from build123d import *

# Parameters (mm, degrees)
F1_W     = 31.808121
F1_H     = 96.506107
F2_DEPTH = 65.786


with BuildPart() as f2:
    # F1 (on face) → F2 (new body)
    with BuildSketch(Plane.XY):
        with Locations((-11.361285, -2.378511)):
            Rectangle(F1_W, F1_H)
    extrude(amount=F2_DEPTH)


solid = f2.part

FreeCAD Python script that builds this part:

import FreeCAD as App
import Part
import Sketcher
from FreeCAD import Vector
Q = App.Units.Quantity


def add_polygon(sketch, points):
    """Adds a closed chain of lines whose ends are joined by coincident constraints."""
    first, n = sketch.GeometryCount, len(points)
    for a, b in zip(points, points[1:] + points[:1]):
        sketch.addGeometry(Part.LineSegment(App.Vector(*a, 0), App.Vector(*b, 0)), False)
    for i in range(n):
        sketch.addConstraint(Sketcher.Constraint("Coincident", first + i, 2, first + (i + 1) % n, 1))

doc = App.newDocument("Part")
body = doc.addObject("PartDesign::Body", "Body")

# Sketch on XY plane
sketch1 = body.newObject("Sketcher::SketchObject", "Sketch")
sketch1.AttachmentSupport = (doc.getObject("XY_Plane"), [""])
sketch1.MapMode = "FlatFace"
add_polygon(sketch1, [(-27.265345, 45.874542), (-27.265345, -50.631565), (4.542776, -50.631565), (4.542776, 45.874542)])  # lines 0-3
sketch1.addConstraint([
    Sketcher.Constraint("Vertical", 0),
    Sketcher.Constraint("Horizontal", 1),
    Sketcher.Constraint("Vertical", 2),
    Sketcher.Constraint("Horizontal", 3),
    Sketcher.Constraint("DistanceX", 1, 1, 1, 2, 31.808121),
    Sketcher.Constraint("DistanceY", 0, 2, 0, 1, 96.506107),
    Sketcher.Constraint("DistanceX", 0, 2, -1, 1, 27.265345),
    Sketcher.Constraint("DistanceY", 0, 2, -1, 1, 50.631565),
])
pad1 = body.newObject("PartDesign::Pad", "Pad")
pad1.Profile = sketch1
pad1.Length = Q("2.59 in")

doc.recompute()
